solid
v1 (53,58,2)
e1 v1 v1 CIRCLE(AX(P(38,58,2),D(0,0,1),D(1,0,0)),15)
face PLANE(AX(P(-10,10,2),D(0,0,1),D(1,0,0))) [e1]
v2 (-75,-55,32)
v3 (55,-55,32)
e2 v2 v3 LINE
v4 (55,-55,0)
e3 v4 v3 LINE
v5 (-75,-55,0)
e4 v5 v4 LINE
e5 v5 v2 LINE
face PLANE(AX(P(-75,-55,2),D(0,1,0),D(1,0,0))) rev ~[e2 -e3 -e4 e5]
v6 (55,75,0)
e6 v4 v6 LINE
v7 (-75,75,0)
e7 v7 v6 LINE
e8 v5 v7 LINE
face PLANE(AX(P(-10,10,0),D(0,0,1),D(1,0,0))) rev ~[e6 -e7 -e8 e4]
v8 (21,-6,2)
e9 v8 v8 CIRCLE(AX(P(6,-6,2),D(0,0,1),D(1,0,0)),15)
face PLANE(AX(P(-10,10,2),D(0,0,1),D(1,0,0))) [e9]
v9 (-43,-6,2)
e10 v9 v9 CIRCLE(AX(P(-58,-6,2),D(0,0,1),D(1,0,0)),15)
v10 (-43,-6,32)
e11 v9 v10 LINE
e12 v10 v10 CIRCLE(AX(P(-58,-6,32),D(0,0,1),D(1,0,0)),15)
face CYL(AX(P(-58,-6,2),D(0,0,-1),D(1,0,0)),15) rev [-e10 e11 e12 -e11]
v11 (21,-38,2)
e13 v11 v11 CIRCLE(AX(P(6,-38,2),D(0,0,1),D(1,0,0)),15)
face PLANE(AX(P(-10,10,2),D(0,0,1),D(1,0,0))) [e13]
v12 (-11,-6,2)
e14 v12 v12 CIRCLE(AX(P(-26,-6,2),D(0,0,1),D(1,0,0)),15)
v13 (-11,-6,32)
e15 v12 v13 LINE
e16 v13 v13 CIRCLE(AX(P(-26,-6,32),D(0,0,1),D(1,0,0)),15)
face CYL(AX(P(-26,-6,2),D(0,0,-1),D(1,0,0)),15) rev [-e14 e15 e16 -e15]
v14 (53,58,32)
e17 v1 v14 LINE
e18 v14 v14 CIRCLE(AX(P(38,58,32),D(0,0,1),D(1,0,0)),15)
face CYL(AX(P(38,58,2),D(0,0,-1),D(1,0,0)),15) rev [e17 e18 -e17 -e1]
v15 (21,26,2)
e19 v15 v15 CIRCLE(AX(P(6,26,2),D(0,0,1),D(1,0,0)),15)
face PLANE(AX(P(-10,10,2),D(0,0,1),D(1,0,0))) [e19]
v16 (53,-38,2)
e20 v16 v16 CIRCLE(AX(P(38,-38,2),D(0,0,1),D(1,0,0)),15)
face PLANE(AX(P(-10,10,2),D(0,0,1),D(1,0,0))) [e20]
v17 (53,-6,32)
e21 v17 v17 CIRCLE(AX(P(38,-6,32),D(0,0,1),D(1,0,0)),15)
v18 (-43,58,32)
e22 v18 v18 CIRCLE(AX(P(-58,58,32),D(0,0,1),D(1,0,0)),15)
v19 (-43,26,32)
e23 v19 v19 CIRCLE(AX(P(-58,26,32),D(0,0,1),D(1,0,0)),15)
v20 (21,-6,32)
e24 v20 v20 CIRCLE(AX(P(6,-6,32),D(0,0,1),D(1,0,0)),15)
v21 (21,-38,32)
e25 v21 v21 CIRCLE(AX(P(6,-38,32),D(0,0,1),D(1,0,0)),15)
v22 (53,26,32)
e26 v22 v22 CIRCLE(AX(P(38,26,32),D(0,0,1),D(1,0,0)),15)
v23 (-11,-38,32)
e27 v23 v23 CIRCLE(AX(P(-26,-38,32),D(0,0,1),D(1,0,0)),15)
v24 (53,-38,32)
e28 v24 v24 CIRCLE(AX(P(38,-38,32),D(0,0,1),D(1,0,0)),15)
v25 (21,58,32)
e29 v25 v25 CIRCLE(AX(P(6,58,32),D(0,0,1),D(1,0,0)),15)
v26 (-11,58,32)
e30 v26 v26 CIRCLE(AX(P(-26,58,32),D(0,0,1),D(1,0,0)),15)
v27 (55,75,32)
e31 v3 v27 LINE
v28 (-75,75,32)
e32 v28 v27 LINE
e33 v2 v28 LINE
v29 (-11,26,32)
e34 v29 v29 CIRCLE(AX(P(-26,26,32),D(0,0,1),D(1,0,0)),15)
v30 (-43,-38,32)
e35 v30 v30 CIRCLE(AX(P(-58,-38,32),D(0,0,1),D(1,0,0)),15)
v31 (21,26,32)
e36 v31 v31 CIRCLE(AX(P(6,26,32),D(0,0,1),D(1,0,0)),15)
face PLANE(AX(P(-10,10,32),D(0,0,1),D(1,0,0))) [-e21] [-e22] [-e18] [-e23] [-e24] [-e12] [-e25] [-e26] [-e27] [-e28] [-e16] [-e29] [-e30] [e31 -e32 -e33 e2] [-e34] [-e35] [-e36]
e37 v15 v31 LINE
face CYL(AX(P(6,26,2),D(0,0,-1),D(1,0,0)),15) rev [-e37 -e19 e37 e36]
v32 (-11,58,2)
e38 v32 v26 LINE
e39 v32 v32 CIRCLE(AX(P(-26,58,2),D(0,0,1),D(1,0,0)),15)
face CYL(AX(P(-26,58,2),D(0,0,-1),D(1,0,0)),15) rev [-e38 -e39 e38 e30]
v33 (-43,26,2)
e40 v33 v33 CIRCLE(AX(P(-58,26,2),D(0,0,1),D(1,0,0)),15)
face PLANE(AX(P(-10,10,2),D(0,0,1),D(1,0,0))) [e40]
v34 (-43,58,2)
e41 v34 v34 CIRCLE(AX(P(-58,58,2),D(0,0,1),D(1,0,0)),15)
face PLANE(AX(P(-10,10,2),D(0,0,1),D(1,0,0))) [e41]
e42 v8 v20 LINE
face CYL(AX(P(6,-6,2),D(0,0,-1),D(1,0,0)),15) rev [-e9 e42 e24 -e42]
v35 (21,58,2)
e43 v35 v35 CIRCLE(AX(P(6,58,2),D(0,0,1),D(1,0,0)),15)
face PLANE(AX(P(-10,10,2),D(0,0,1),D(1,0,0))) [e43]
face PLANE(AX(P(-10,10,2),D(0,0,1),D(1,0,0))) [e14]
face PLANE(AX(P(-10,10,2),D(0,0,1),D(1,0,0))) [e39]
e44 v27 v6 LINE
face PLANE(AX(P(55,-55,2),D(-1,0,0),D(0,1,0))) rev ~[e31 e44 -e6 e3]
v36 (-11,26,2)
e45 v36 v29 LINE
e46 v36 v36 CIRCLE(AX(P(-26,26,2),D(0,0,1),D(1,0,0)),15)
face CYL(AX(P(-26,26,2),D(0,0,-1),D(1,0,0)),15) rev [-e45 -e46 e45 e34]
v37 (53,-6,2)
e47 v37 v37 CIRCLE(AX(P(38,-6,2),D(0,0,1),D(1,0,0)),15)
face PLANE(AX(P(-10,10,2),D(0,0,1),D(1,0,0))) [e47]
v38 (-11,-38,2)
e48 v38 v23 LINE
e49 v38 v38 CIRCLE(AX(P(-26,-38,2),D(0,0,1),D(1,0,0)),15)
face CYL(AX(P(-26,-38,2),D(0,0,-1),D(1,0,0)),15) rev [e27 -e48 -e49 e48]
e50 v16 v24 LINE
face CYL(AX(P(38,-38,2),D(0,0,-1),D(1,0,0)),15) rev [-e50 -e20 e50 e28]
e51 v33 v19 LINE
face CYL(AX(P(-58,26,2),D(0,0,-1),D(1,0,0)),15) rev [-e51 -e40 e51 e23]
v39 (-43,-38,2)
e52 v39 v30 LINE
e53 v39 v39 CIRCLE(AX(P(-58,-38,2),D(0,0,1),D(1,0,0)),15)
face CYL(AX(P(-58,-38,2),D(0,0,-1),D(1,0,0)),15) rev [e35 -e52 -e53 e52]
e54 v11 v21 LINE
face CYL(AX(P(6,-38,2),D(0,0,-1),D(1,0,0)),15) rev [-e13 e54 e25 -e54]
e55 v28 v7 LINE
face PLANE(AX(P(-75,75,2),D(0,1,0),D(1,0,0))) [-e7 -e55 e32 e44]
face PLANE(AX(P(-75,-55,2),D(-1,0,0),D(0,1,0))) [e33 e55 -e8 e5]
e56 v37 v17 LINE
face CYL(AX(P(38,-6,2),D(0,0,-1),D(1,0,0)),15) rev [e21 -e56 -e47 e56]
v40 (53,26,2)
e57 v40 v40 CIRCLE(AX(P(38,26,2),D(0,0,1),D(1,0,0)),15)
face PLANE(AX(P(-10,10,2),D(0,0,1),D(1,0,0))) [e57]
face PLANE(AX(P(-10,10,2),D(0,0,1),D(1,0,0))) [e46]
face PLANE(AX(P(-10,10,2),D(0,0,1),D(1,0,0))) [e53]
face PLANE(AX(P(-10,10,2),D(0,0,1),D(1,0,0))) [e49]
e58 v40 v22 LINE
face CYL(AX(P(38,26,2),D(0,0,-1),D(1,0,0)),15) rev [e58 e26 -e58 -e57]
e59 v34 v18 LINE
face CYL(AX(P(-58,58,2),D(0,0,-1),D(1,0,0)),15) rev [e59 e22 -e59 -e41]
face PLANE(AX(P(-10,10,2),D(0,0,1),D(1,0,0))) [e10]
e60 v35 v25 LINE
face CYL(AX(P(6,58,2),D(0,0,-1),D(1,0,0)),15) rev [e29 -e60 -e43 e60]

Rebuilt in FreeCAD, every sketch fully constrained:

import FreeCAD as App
import Part
import Sketcher

V = App.Vector
Q = App.Units.Quantity


def add_polygon(sketch, points):
    """Adds a closed chain of lines whose ends are joined by coincident constraints."""
    first, n = sketch.GeometryCount, len(points)
    for a, b in zip(points, points[1:] + points[:1]):
        sketch.addGeometry(Part.LineSegment(App.Vector(*a, 0), App.Vector(*b, 0)), False)
    for i in range(n):
        sketch.addConstraint(Sketcher.Constraint("Coincident", first + i, 2, first + (i + 1) % n, 1))

doc = App.newDocument("Part")
body = doc.addObject("PartDesign::Body", "Body")

# Sketch on XY plane
sketch1 = body.newObject("Sketcher::SketchObject", "Sketch")
sketch1.AttachmentSupport = (doc.getObject("XY_Plane"), [""])
sketch1.MapMode = "FlatFace"
add_polygon(sketch1, [(-75, 75), (-75, -55), (55, -55), (55, 75)])  # lines 0-3
sketch1.addConstraint([
    Sketcher.Constraint("Vertical", 0),
    Sketcher.Constraint("Horizontal", 1),
    Sketcher.Constraint("Vertical", 2),
    Sketcher.Constraint("Horizontal", 3),
    Sketcher.Constraint("Equal", 3, 0),
    Sketcher.Constraint("DistanceX", 1, 1, 1, 2, Q("130 mm")),
    Sketcher.Constraint("DistanceX", 0, 2, -1, 1, Q("75 mm")),
    Sketcher.Constraint("DistanceY", 0, 2, -1, 1, Q("55 mm")),
])
pad1 = body.newObject("PartDesign::Pad", "Pad")
pad1.Profile = sketch1
pad1.Length = 2

# Sketch on XY plane
sketch2 = body.newObject("Sketcher::SketchObject", "Sketch001")
sketch2.AttachmentSupport = (doc.getObject("XY_Plane"), [""])
sketch2.MapMode = "FlatFace"
sketch2.AttachmentOffset = App.Placement(V(0, 0, 2), App.Rotation())
add_polygon(sketch2, [(-75, 75), (-75, -55), (55, -55), (55, 75)])  # lines 0-3
sketch2.addGeometry(Part.Circle(V(-58, -38, 0), V(0, 0, 1), 15), False)  # 4
sketch2.addGeometry(Part.Circle(V(-26, -38, 0), V(0, 0, 1), 15), False)  # 5
sketch2.addGeometry(Part.Circle(V(-58, -6, 0), V(0, 0, 1), 15), False)  # 6
sketch2.addGeometry(Part.Circle(V(-26, -6, 0), V(0, 0, 1), 15), False)  # 7
sketch2.addGeometry(Part.Circle(V(6, -38, 0), V(0, 0, 1), 15), False)  # 8
sketch2.addGeometry(Part.Circle(V(38, -38, 0), V(0, 0, 1), 15), False)  # 9
sketch2.addGeometry(Part.Circle(V(6, -6, 0), V(0, 0, 1), 15), False)  # 10
sketch2.addGeometry(Part.Circle(V(38, -6, 0), V(0, 0, 1), 15), False)  # 11
sketch2.addGeometry(Part.Circle(V(-58, 26, 0), V(0, 0, 1), 15), False)  # 12
sketch2.addGeometry(Part.Circle(V(-26, 26, 0), V(0, 0, 1), 15), False)  # 13
sketch2.addGeometry(Part.Circle(V(-58, 58, 0), V(0, 0, 1), 15), False)  # 14
sketch2.addGeometry(Part.Circle(V(-26, 58, 0), V(0, 0, 1), 15), False)  # 15
sketch2.addGeometry(Part.Circle(V(6, 26, 0), V(0, 0, 1), 15), False)  # 16
sketch2.addGeometry(Part.Circle(V(38, 26, 0), V(0, 0, 1), 15), False)  # 17
sketch2.addGeometry(Part.Circle(V(6, 58, 0), V(0, 0, 1), 15), False)  # 18
sketch2.addGeometry(Part.Circle(V(38, 58, 0), V(0, 0, 1), 15), False)  # 19
sketch2.addConstraint([
    Sketcher.Constraint("Vertical", 0),
    Sketcher.Constraint("Horizontal", 1),
    Sketcher.Constraint("Vertical", 2),
    Sketcher.Constraint("Horizontal", 3),
    Sketcher.Constraint("Equal", 4, 5),
    Sketcher.Constraint("Equal", 5, 6),
    Sketcher.Constraint("Equal", 6, 7),
    Sketcher.Constraint("Equal", 7, 8),
    Sketcher.Constraint("Equal", 8, 9),
    Sketcher.Constraint("Equal", 9, 10),
    Sketcher.Constraint("Equal", 10, 11),
    Sketcher.Constraint("Equal", 11, 12),
    Sketcher.Constraint("Equal", 12, 13),
    Sketcher.Constraint("Equal", 13, 14),
    Sketcher.Constraint("Equal", 14, 15),
    Sketcher.Constraint("Equal", 15, 16),
    Sketcher.Constraint("Equal", 16, 17),
    Sketcher.Constraint("Equal", 17, 18),
    Sketcher.Constraint("Equal", 18, 19),
    Sketcher.Constraint("Horizontal", 4, 3, 5, 3),
    Sketcher.Constraint("Horizontal", 6, 3, 7, 3),
    Sketcher.Constraint("Horizontal", 5, 3, 8, 3),
    Sketcher.Constraint("Horizontal", 8, 3, 9, 3),
    Sketcher.Constraint("Horizontal", 7, 3, 10, 3),
    Sketcher.Constraint("Horizontal", 10, 3, 11, 3),
    Sketcher.Constraint("Horizontal", 12, 3, 13, 3),
    Sketcher.Constraint("Horizontal", 14, 3, 15, 3),
    Sketcher.Constraint("Horizontal", 13, 3, 16, 3),
    Sketcher.Constraint("Horizontal", 16, 3, 17, 3),
    Sketcher.Constraint("Horizontal", 15, 3, 18, 3),
    Sketcher.Constraint("Horizontal", 18, 3, 19, 3),
    Sketcher.Constraint("Vertical", 4, 3, 6, 3),
    Sketcher.Constraint("Vertical", 5, 3, 7, 3),
    Sketcher.Constraint("Vertical", 8, 3, 10, 3),
    Sketcher.Constraint("Vertical", 9, 3, 11, 3),
    Sketcher.Constraint("Vertical", 6, 3, 12, 3),
    Sketcher.Constraint("Vertical", 7, 3, 13, 3),
    Sketcher.Constraint("Vertical", 12, 3, 14, 3),
    Sketcher.Constraint("Vertical", 13, 3, 15, 3),
    Sketcher.Constraint("Vertical", 10, 3, 16, 3),
    Sketcher.Constraint("Vertical", 11, 3, 17, 3),
    Sketcher.Constraint("Vertical", 16, 3, 18, 3),
    Sketcher.Constraint("Vertical", 17, 3, 19, 3),
    Sketcher.Constraint("Equal", 3, 0),
    Sketcher.Constraint("Diameter", 4, Q("30 mm")),
    Sketcher.Constraint("DistanceX", 1, 1, 1, 2, Q("130 mm")),
    Sketcher.Constraint("DistanceX", 4, 3, -1, 1, Q("58 mm")),
    Sketcher.Constraint("DistanceY", 4, 3, -1, 1, Q("38 mm")),
    Sketcher.Constraint("DistanceX", 5, 3, -1, 1, Q("26 mm")),
    Sketcher.Constraint("DistanceY", 6, 3, -1, 1, Q("6 mm")),
    Sketcher.Constraint("DistanceX", -1, 1, 8, 3, Q("6 mm")),
    Sketcher.Constraint("DistanceX", -1, 1, 9, 3, Q("38 mm")),
    Sketcher.Constraint("DistanceY", -1, 1, 12, 3, Q("26 mm")),
    Sketcher.Constraint("DistanceY", -1, 1, 14, 3, Q("58 mm")),
    Sketcher.Constraint("DistanceX", 0, 2, -1, 1, Q("75 mm")),
    Sketcher.Constraint("DistanceY", 0, 2, -1, 1, Q("55 mm")),
])
pad2 = body.newObject("PartDesign::Pad", "Pad001")
pad2.Profile = sketch2
pad2.Length = 30

doc.recompute()
